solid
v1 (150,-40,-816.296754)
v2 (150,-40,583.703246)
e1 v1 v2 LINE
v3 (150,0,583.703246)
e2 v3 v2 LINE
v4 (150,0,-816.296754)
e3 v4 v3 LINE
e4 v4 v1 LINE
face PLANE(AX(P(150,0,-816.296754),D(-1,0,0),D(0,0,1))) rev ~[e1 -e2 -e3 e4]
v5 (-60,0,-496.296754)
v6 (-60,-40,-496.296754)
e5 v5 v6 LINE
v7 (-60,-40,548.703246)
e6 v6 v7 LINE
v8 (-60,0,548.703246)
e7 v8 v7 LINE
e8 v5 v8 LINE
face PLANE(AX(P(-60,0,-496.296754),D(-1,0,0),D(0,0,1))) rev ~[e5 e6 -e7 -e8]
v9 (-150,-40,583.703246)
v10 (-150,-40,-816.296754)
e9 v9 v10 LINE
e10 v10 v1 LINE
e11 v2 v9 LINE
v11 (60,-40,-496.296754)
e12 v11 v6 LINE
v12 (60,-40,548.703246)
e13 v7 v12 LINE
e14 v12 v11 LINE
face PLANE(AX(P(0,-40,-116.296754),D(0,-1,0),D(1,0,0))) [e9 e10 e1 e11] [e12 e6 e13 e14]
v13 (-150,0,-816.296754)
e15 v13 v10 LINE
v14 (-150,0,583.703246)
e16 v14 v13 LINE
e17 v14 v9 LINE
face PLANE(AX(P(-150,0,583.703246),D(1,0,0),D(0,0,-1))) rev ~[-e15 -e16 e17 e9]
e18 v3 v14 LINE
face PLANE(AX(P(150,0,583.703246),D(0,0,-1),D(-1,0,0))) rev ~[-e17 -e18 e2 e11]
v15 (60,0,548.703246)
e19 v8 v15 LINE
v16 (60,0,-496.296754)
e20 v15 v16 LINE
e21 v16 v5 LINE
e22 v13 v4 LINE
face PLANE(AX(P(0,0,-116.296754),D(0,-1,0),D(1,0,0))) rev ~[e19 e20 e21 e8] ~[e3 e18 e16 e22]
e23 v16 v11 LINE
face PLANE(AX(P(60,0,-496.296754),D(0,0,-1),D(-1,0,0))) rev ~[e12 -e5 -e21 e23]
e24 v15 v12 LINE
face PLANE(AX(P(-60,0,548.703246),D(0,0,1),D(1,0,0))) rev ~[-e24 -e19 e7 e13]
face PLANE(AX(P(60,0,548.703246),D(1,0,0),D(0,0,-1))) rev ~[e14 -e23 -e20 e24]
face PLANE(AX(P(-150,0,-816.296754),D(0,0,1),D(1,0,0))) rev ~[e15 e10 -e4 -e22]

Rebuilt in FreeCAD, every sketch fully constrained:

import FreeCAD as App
import Part
import Sketcher
Q = App.Units.Quantity


def add_polygon(sketch, points):
    """Adds a closed chain of lines whose ends are joined by coincident constraints."""
    first, n = sketch.GeometryCount, len(points)
    for a, b in zip(points, points[1:] + points[:1]):
        sketch.addGeometry(Part.LineSegment(App.Vector(*a, 0), App.Vector(*b, 0)), False)
    for i in range(n):
        sketch.addConstraint(Sketcher.Constraint("Coincident", first + i, 2, first + (i + 1) % n, 1))

doc = App.newDocument("Part")
params = doc.addObject("Spreadsheet::Sheet", "Params")
for row, (alias, value) in enumerate([
    ("sketch1_width", "300 mm"),
    ("sketch1_width2", "120 mm"),
    ("sketch1_height", "1400 mm"),
    ("sketch1_height2", "1045 mm"),
    ("pad1_length", "40 mm"),
], start=1):
    params.set(f"A{row}", alias)
    params.set(f"B{row}", "=" + value)
    params.setAlias(f"B{row}", alias)

body = doc.addObject("PartDesign::Body", "Body")

sketch1 = doc.addObject("Sketcher::SketchObject", "Sketch")
body.addObject(sketch1)
sketch1.AttachmentSupport = (doc.XZ_Plane, [""])
sketch1.MapMode = "FlatFace"
add_polygon(sketch1, [(-150, 584), (-150, -816), (150, -816), (150, 584)])
add_polygon(sketch1, [(-60, -496), (-60, 549), (60, 549), (60, -496)])
sketch1.addConstraint(Sketcher.Constraint("Vertical", 0))
sketch1.addConstraint(Sketcher.Constraint("Horizontal", 1))
sketch1.addConstraint(Sketcher.Constraint("Vertical", 2))
sketch1.addConstraint(Sketcher.Constraint("Horizontal", 3))
sketch1.addConstraint(Sketcher.Constraint("Vertical", 4))
sketch1.addConstraint(Sketcher.Constraint("Horizontal", 5))
sketch1.addConstraint(Sketcher.Constraint("Vertical", 6))
sketch1.addConstraint(Sketcher.Constraint("Horizontal", 7))
sketch1.addConstraint(Sketcher.Constraint("DistanceX", 1, 1, 1, 2, Q("300 mm")))
sketch1.addConstraint(Sketcher.Constraint("DistanceX", 5, 1, 5, 2, Q("120 mm")))
sketch1.addConstraint(Sketcher.Constraint("DistanceY", 0, 2, 0, 1, Q("1400 mm")))
sketch1.addConstraint(Sketcher.Constraint("DistanceY", 4, 1, 4, 2, Q("1045 mm")))
sketch1.addConstraint(Sketcher.Constraint("DistanceX", 0, 2, -1, 1, Q("150 mm")))
sketch1.addConstraint(Sketcher.Constraint("DistanceX", 4, 2, -1, 1, Q("60 mm")))
sketch1.addConstraint(Sketcher.Constraint("DistanceY", 4, 2, 3, 2, Q("35 mm")))
sketch1.addConstraint(Sketcher.Constraint("DistanceY", 0, 2, -1, 1, Q("816.296754 mm")))
sketch1.setExpression("Constraints[16]", "Params.sketch1_width")
sketch1.setExpression("Constraints[17]", "Params.sketch1_width2")
sketch1.setExpression("Constraints[18]", "Params.sketch1_height")
sketch1.setExpression("Constraints[19]", "Params.sketch1_height2")
pad1 = doc.addObject("PartDesign::Pad", "Pad")
body.addObject(pad1)
pad1.Profile = sketch1
pad1.setExpression("Length", "Params.pad1_length")

doc.recompute()
